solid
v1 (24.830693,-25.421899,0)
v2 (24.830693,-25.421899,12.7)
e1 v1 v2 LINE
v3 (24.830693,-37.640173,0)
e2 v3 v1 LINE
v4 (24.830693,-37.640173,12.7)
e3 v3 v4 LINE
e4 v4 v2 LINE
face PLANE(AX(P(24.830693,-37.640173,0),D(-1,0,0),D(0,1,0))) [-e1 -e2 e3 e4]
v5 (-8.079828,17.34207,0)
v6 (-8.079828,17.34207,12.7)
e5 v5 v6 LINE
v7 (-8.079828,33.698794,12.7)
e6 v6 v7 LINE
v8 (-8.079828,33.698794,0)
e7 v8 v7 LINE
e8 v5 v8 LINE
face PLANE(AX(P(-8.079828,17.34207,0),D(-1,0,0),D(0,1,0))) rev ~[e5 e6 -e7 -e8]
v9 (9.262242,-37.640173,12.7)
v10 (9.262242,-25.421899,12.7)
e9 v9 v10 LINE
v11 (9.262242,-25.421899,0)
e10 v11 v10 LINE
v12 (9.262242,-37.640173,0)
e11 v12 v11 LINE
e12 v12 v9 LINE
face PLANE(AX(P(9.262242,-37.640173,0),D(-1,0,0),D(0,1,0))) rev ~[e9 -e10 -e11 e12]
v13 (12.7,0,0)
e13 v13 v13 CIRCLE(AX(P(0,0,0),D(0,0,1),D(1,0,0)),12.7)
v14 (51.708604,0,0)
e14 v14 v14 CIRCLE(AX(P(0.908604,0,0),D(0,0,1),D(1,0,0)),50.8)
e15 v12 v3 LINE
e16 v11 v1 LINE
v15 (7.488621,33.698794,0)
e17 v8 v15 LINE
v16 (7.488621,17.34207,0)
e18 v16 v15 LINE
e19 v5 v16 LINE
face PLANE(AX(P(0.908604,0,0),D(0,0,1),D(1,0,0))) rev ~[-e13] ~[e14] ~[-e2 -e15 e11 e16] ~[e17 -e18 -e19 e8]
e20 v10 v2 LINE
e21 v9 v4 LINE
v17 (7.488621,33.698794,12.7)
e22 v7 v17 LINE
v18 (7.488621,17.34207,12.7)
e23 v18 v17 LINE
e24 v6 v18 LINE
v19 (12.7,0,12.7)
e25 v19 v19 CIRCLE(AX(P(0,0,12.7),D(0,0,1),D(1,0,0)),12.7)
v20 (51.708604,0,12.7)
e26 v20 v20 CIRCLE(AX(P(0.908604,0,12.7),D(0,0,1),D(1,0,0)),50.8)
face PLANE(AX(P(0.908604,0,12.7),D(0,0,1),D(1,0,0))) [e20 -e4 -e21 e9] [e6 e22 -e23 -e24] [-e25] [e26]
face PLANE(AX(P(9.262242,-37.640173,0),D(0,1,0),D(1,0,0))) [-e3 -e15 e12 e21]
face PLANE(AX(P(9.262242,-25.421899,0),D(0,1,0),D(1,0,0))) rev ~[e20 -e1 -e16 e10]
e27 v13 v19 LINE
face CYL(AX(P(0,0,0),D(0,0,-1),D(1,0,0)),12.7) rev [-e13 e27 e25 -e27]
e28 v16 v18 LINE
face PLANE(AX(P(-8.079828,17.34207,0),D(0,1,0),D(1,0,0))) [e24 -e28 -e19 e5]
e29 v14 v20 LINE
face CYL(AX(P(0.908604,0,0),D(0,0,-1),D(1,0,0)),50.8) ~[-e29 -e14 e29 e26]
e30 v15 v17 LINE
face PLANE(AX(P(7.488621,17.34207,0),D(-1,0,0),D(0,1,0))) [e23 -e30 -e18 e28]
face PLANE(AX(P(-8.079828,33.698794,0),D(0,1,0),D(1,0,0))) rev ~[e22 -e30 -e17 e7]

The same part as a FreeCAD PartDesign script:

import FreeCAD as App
import Part
import Sketcher
from FreeCAD import Vector
Q = App.Units.Quantity


def add_polygon(sketch, points):
    """Adds a closed chain of lines whose ends are joined by coincident constraints."""
    first, n = sketch.GeometryCount, len(points)
    for a, b in zip(points, points[1:] + points[:1]):
        sketch.addGeometry(Part.LineSegment(App.Vector(*a, 0), App.Vector(*b, 0)), False)
    for i in range(n):
        sketch.addConstraint(Sketcher.Constraint("Coincident", first + i, 2, first + (i + 1) % n, 1))

doc = App.newDocument("Part")
body = doc.addObject("PartDesign::Body", "Body")

sketch1 = body.newObject("Sketcher::SketchObject", "Sketch")
sketch1.AttachmentSupport = (doc.getObject("XY_Plane"), [""])
sketch1.MapMode = "FlatFace"
sketch1.addGeometry(Part.Circle(Vector(1, 0, 0), Vector(0, 0, 1), 51), False)
add_polygon(sketch1, [(25, -38), (9, -38), (9, -25), (25, -25)])
sketch1.addGeometry(Part.Circle(Vector(0, 0, 0), Vector(0, 0, 1), 13), False)
add_polygon(sketch1, [(7, 17), (-8, 17), (-8, 34), (7, 34)])
sketch1.addConstraint([
    Sketcher.Constraint("Horizontal", 1),
    Sketcher.Constraint("Vertical", 2),
    Sketcher.Constraint("Horizontal", 3),
    Sketcher.Constraint("Vertical", 4),
    Sketcher.Constraint("Horizontal", 6),
    Sketcher.Constraint("Vertical", 7),
    Sketcher.Constraint("Horizontal", 8),
    Sketcher.Constraint("Vertical", 9),
    Sketcher.Constraint("Coincident", 5, 3, -1, 1),
    Sketcher.Constraint("PointOnObject", 0, 3, -1),
    Sketcher.Constraint("Diameter", 0, Q("4 in")),
    Sketcher.Constraint("Diameter", 5, Q("1 in")),
    Sketcher.Constraint("DistanceX", 1, 2, 1, 1, Q("15.568451 mm")),
    Sketcher.Constraint("DistanceX", 6, 2, 6, 1, Q("15.568449 mm")),
    Sketcher.Constraint("DistanceY", 2, 2, -1, 1, Q("25.421899 mm")),
    Sketcher.Constraint("DistanceY", 2, 1, 2, 2, Q("12.218274 mm")),
    Sketcher.Constraint("DistanceY", 7, 1, 7, 2, Q("16.356724 mm")),
    Sketcher.Constraint("DistanceX", -1, 1, 1, 2, Q("9.262242 mm")),
    Sketcher.Constraint("DistanceY", -1, 1, 6, 2, Q("17.34207 mm")),
    Sketcher.Constraint("DistanceX", -1, 1, 8, 2, Q("7.488621 mm")),
    Sketcher.Constraint("DistanceX", 0, 3, 3, 2, Q("23.922089 mm")),
])
pad1 = body.newObject("PartDesign::Pad", "Pad")
pad1.Profile = sketch1
pad1.Length = Q("0.5 in")

doc.recompute()
